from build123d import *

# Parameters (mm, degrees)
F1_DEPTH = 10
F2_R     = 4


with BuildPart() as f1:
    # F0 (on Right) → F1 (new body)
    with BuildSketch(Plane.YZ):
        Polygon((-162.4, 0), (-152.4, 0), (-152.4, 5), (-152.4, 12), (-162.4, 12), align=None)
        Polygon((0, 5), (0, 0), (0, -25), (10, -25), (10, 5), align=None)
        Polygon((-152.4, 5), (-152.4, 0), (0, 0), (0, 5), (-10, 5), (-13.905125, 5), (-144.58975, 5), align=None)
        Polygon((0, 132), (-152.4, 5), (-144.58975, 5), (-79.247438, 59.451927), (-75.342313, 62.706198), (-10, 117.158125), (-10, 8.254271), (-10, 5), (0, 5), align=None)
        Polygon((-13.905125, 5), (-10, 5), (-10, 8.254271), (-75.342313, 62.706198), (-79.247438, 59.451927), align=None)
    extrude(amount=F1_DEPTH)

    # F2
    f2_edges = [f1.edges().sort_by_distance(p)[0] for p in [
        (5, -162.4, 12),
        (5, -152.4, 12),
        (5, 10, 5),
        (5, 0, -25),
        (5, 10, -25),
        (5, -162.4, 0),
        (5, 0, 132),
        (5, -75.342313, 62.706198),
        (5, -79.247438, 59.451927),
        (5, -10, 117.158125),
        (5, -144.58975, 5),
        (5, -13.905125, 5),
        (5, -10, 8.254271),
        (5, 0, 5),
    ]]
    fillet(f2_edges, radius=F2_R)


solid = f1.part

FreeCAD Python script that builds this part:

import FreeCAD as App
import Part
import Sketcher

V = App.Vector
Q = App.Units.Quantity


def edges_at(feature, points):
    """Names of the edges that pass closest to the given points."""
    edges = feature.Shape.Edges
    near = lambda p: min(range(len(edges)), key=lambda i: edges[i].distToShape(Part.Vertex(*p))[0])
    return sorted({f"Edge{near(p) + 1}" for p in points})


def add_polygon(sketch, points):
    """Adds a closed chain of lines whose ends are joined by coincident constraints."""
    first, n = sketch.GeometryCount, len(points)
    for a, b in zip(points, points[1:] + points[:1]):
        sketch.addGeometry(Part.LineSegment(App.Vector(*a, 0), App.Vector(*b, 0)), False)
    for i in range(n):
        sketch.addConstraint(Sketcher.Constraint("Coincident", first + i, 2, first + (i + 1) % n, 1))

doc = App.newDocument("Part")
body = doc.addObject("PartDesign::Body", "Body")

sketch1 = body.newObject("Sketcher::SketchObject", "Sketch")
sketch1.AttachmentSupport = (doc.getObject("YZ_Plane"), [""])
sketch1.MapMode = "FlatFace"
add_polygon(sketch1, [(-162, 0), (0, 0), (0, -25), (10, -25), (10, 5), (0, 5), (0, 132), (-152, 5), (-152, 12), (-162, 12)])
add_polygon(sketch1, [(-14, 5), (-145, 5), (-79, 59)])
add_polygon(sketch1, [(-75, 63), (-10, 117), (-10, 8)])
sketch1.addConstraint([
    Sketcher.Constraint("Horizontal", 0),
    Sketcher.Constraint("Vertical", 1),
    Sketcher.Constraint("Horizontal", 2),
    Sketcher.Constraint("Vertical", 3),
    Sketcher.Constraint("Horizontal", 4),
    Sketcher.Constraint("Vertical", 5),
    Sketcher.Constraint("Vertical", 7),
    Sketcher.Constraint("Horizontal", 8),
    Sketcher.Constraint("Vertical", 9),
    Sketcher.Constraint("Horizontal", 10),
    Sketcher.Constraint("Vertical", 14),
    Sketcher.Constraint("Coincident", 0, 2, -1, 1),
    Sketcher.Constraint("PointOnObject", 4, 2, -2),
    Sketcher.Constraint("Parallel", 6, 11),
    Sketcher.Constraint("Parallel", 11, 13),
    Sketcher.Constraint("Parallel", 12, 15),
    Sketcher.Constraint("Horizontal", 4, 2, 6, 2),
    Sketcher.Constraint("Horizontal", 6, 2, 10, 2),
    Sketcher.Constraint("Equal", 4, 8),
    Sketcher.Constraint("Equal", 11, 12),
    Sketcher.Constraint("Equal", 12, 13),
    Sketcher.Constraint("DistanceX", 2, 1, 2, 2, Q("10 mm")),
    Sketcher.Constraint("DistanceY", 1, 2, 1, 1, Q("25 mm")),
    Sketcher.Constraint("DistanceY", 3, 1, 3, 2, Q("30 mm")),
    Sketcher.Constraint("DistanceY", 5, 1, 5, 2, Q("127 mm")),
    Sketcher.Constraint("DistanceY", 7, 1, 7, 2, Q("7 mm")),
    Sketcher.Constraint("DistanceX", 0, 1, 0, 2, Q("162.4 mm")),
    Sketcher.Constraint("DistanceX", 13, 2, -1, 1, Q("10 mm")),
    Sketcher.Constraint("Distance", 11, Q("85.056629 mm")),
    Sketcher.Constraint("DistanceX", 10, 2, -1, 1, Q("144.58975 mm")),
    Sketcher.Constraint("DistanceY", -1, 1, 14, 2, Q("8.254271 mm")),
])
pad1 = body.newObject("PartDesign::Pad", "Pad")
pad1.Profile = sketch1
pad1.Length = 10
doc.recompute()

fillet = body.newObject("PartDesign::Fillet", "Fillet")
fillet.Base = (pad1, edges_at(pad1, [
    (5, -162.4, 12),
    (5, -152.4, 12),
    (5, 10, 5),
    (5, 0, -25),
    (5, 10, -25),
    (5, -162.4, 0),
    (5, 0, 132),
    (5, -75.342, 62.706),
    (5, -79.247, 59.452),
    (5, -10, 117.158),
    (5, -144.59, 5),
    (5, -13.905, 5),
    (5, -10, 8.254),
    (5, 0, 5),
]))
fillet.Radius = 4

doc.recompute()
